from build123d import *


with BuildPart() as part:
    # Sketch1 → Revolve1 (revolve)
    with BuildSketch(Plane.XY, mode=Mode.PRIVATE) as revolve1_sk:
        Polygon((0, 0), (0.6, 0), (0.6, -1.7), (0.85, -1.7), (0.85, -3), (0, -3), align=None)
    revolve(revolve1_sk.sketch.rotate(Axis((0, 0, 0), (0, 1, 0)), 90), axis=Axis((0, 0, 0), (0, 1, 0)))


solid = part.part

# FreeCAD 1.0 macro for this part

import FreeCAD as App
import Part
import Sketcher
Q = App.Units.Quantity

doc = App.newDocument("Part")
body = doc.addObject("PartDesign::Body", "Body")

sketch1 = body.newObject("Sketcher::SketchObject", "Sketch")
sketch1.AttachmentSupport = (doc.getObject("XY_Plane"), [""])
sketch1.MapMode = "FlatFace"
sketch1.addGeometry([
    Part.LineSegment(App.Vector(0.6, 0, 0), App.Vector(0, 0, 0)),
    Part.LineSegment(App.Vector(0, 0, 0), App.Vector(0, -3, 0)),
    Part.LineSegment(App.Vector(0, -3, 0), App.Vector(0.85, -3, 0)),
    Part.LineSegment(App.Vector(0.85, -3, 0), App.Vector(0.85, -1.7, 0)),
    Part.LineSegment(App.Vector(0.85, -1.7, 0), App.Vector(0.6, -1.7, 0)),
    Part.LineSegment(App.Vector(0.6, -1.7, 0), App.Vector(0.6, 0, 0)),
], False)
sketch1.addConstraint([
    Sketcher.Constraint("Coincident", 0, 2, 1, 1),
    Sketcher.Constraint("Coincident", 1, 2, 2, 1),
    Sketcher.Constraint("Coincident", 2, 2, 3, 1),
    Sketcher.Constraint("Coincident", 3, 2, 4, 1),
    Sketcher.Constraint("Coincident", 4, 2, 5, 1),
    Sketcher.Constraint("Coincident", 5, 2, 0, 1),
    Sketcher.Constraint("Horizontal", 0),
    Sketcher.Constraint("Vertical", 1),
    Sketcher.Constraint("Horizontal", 2),
    Sketcher.Constraint("Vertical", 3),
    Sketcher.Constraint("Horizontal", 4),
    Sketcher.Constraint("Vertical", 5),
    Sketcher.Constraint("Coincident", 0, 2, -1, 1),
    Sketcher.Constraint("DistanceY", 1, 2, 1, 1, Q("3 mm")),
    Sketcher.Constraint("DistanceX", 0, 2, 0, 1, Q("0.6 mm")),
    Sketcher.Constraint("DistanceY", 3, 1, 3, 2, Q("1.3 mm")),
    Sketcher.Constraint("DistanceX", 2, 1, 2, 2, Q("0.85 mm")),
])
revolution = body.newObject("PartDesign::Revolution", "Revolution")
revolution.Profile = sketch1
revolution.ReferenceAxis = (sketch1, ["V_Axis"])
revolution.Angle = 360

doc.recompute()
